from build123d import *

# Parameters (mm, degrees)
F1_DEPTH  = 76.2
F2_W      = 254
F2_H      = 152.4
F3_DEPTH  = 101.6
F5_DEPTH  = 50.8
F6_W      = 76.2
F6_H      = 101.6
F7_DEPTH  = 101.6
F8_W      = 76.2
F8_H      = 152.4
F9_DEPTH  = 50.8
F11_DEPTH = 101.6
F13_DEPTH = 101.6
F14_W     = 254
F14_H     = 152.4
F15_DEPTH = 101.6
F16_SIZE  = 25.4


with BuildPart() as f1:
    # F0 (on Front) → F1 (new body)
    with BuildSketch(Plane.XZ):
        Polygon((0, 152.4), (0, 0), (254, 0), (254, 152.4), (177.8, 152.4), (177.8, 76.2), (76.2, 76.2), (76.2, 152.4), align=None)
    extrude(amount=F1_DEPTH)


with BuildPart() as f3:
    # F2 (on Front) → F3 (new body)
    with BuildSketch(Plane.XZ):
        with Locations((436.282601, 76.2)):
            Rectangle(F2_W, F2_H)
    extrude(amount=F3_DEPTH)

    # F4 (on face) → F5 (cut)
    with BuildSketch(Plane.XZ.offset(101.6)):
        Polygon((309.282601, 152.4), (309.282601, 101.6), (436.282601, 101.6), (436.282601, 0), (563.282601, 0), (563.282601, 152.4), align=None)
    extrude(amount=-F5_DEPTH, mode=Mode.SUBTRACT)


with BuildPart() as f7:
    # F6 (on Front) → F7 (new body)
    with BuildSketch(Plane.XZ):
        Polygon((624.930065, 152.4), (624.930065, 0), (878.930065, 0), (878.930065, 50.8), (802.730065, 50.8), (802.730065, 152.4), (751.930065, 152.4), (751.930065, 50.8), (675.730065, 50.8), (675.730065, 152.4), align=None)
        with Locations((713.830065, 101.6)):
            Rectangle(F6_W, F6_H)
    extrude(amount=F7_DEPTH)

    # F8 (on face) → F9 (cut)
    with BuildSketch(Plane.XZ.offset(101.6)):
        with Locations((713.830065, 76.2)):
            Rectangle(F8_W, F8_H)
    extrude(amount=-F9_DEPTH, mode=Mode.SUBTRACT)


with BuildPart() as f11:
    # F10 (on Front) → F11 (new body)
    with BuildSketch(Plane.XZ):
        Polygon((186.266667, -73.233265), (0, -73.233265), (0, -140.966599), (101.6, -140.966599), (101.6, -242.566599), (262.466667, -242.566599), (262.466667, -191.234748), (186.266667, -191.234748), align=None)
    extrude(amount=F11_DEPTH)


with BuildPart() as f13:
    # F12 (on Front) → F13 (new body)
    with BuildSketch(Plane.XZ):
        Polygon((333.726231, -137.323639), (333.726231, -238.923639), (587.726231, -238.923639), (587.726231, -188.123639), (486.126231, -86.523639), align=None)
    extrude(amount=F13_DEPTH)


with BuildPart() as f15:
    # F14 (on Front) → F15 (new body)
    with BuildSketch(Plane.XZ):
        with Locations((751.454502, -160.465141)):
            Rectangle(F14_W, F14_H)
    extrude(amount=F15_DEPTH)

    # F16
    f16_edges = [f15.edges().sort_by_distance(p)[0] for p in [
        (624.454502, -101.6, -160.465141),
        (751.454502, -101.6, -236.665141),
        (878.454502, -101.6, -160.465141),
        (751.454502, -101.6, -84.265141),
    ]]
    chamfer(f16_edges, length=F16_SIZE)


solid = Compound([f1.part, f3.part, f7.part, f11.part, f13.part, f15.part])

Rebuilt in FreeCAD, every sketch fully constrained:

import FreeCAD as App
import Part
import Sketcher
from FreeCAD import Vector
Q = App.Units.Quantity


def edges_at(feature, points):
    """Names of the edges that pass closest to the given points."""
    edges = feature.Shape.Edges
    near = lambda p: min(range(len(edges)), key=lambda i: edges[i].distToShape(Part.Vertex(*p))[0])
    return sorted({f"Edge{near(p) + 1}" for p in points})

doc = App.newDocument("Part")
params = doc.addObject("Spreadsheet::Sheet", "Params")
for row, (alias, value) in enumerate([
    ("sketch1_width", "10 in"),
    ("sketch1_width2", "3 in"),
    ("sketch1_height", "6 in"),
    ("pad1_length", "3 in"),
    ("sketch2_width", "10 in"),
    ("sketch2_height", "6 in"),
    ("pad2_length", "4 in"),
    ("sketch3_width", "5 in"),
    ("sketch3_height", "2 in"),
    ("sketch3_height2", "4 in"),
    ("pocket1_length", "2 in"),
    ("sketch4_width", "10 in"),
    ("sketch4_width2", "3 in"),
    ("sketch4_height", "6 in"),
    ("sketch4_height2", "2 in"),
    ("pad3_length", "4 in"),
    ("sketch5_width", "3 in"),
    ("sketch5_height", "6 in"),
    ("pocket2_length", "2 in"),
    ("sketch6_width", "4 in"),
    ("sketch6_width2", "3 in"),
    ("pad4_length", "4 in"),
    ("sketch7_width", "10 in"),
    ("sketch7_height", "4 in"),
    ("sketch7_height2", "2 in"),
    ("pad5_length", "4 in"),
    ("sketch8_width", "10 in"),
    ("sketch8_height", "6 in"),
    ("pad6_length", "4 in"),
    ("chamfer_size", "1 in"),
], start=1):
    params.set(f"A{row}", alias)
    params.set(f"B{row}", "=" + value)
    params.setAlias(f"B{row}", alias)

body = doc.addObject("PartDesign::Body", "Body")

sketch1 = body.newObject("Sketcher::SketchObject", "Sketch")
sketch1.AttachmentSupport = (doc.getObject("XZ_Plane"), [""])
sketch1.MapMode = "FlatFace"
sketch1.addGeometry([
    Part.LineSegment(Vector(0, 152.4, 0), Vector(0, 0, 0)),
    Part.LineSegment(Vector(0, 0, 0), Vector(254, 0, 0)),
    Part.LineSegment(Vector(254, 0, 0), Vector(254, 152.4, 0)),
    Part.LineSegment(Vector(254, 152.4, 0), Vector(177.8, 152.4, 0)),
    Part.LineSegment(Vector(177.8, 152.4, 0), Vector(177.8, 76.2, 0)),
    Part.LineSegment(Vector(177.8, 76.2, 0), Vector(76.2, 76.2, 0)),
    Part.LineSegment(Vector(76.2, 76.2, 0), Vector(76.2, 152.4, 0)),
    Part.LineSegment(Vector(76.2, 152.4, 0), Vector(0, 152.4, 0)),
], False)
sketch1.addConstraint([
    Sketcher.Constraint("Coincident", 0, 2, 1, 1),
    Sketcher.Constraint("Coincident", 1, 2, 2, 1),
    Sketcher.Constraint("Coincident", 2, 2, 3, 1),
    Sketcher.Constraint("Coincident", 3, 2, 4, 1),
    Sketcher.Constraint("Coincident", 4, 2, 5, 1),
    Sketcher.Constraint("Coincident", 5, 2, 6, 1),
    Sketcher.Constraint("Coincident", 6, 2, 7, 1),
    Sketcher.Constraint("Coincident", 7, 2, 0, 1),
    Sketcher.Constraint("Vertical", 0),
    Sketcher.Constraint("Horizontal", 1),
    Sketcher.Constraint("Vertical", 2),
    Sketcher.Constraint("Horizontal", 3),
    Sketcher.Constraint("Vertical", 4),
    Sketcher.Constraint("Horizontal", 5),
    Sketcher.Constraint("Vertical", 6),
    Sketcher.Constraint("Horizontal", 7),
    Sketcher.Constraint("Coincident", 0, 2, -1, 1),
    Sketcher.Constraint("Horizontal", 3, 2, 6, 2),
    Sketcher.Constraint("Equal", 3, 7),
    Sketcher.Constraint("Equal", 7, 4),
    Sketcher.Constraint("DistanceX", 1, 1, 1, 2, Q("10 in")),
    Sketcher.Constraint("DistanceX", 3, 2, 3, 1, Q("3 in")),
    Sketcher.Constraint("DistanceY", 0, 2, 0, 1, Q("6 in")),
])
sketch1.setExpression("Constraints[20]", "Params.sketch1_width")
sketch1.setExpression("Constraints[21]", "Params.sketch1_width2")
sketch1.setExpression("Constraints[22]", "Params.sketch1_height")
pad1 = body.newObject("PartDesign::Pad", "Pad")
pad1.Profile = sketch1
pad1.setExpression("Length", "Params.pad1_length")
body2 = doc.addObject("PartDesign::Body", "Body001")

sketch2 = body2.newObject("Sketcher::SketchObject", "Sketch001")
sketch2.AttachmentSupport = (doc.getObject("XZ_Plane001"), [""])
sketch2.MapMode = "FlatFace"
sketch2.addGeometry([
    Part.LineSegment(Vector(309.282601, 152.4, 0), Vector(309.282601, 0, 0)),
    Part.LineSegment(Vector(309.282601, 0, 0), Vector(563.282601, 0, 0)),
    Part.LineSegment(Vector(563.282601, 0, 0), Vector(563.282601, 152.4, 0)),
    Part.LineSegment(Vector(563.282601, 152.4, 0), Vector(309.282601, 152.4, 0)),
], False)
sketch2.addConstraint([
    Sketcher.Constraint("Coincident", 0, 2, 1, 1),
    Sketcher.Constraint("Coincident", 1, 2, 2, 1),
    Sketcher.Constraint("Coincident", 2, 2, 3, 1),
    Sketcher.Constraint("Coincident", 3, 2, 0, 1),
    Sketcher.Constraint("Vertical", 0),
    Sketcher.Constraint("Horizontal", 1),
    Sketcher.Constraint("Vertical", 2),
    Sketcher.Constraint("Horizontal", 3),
    Sketcher.Constraint("PointOnObject", 0, 2, -1),
    Sketcher.Constraint("DistanceX", 1, 1, 1, 2, Q("10 in")),
    Sketcher.Constraint("DistanceY", 0, 2, 0, 1, Q("6 in")),
    Sketcher.Constraint("DistanceX", -1, 1, 0, 2, 309.282601),
])
sketch2.setExpression("Constraints[9]", "Params.sketch2_width")
sketch2.setExpression("Constraints[10]", "Params.sketch2_height")
pad2 = body2.newObject("PartDesign::Pad", "Pad001")
pad2.Profile = sketch2
pad2.setExpression("Length", "Params.pad2_length")

sketch3 = body2.newObject("Sketcher::SketchObject", "Sketch002")
sketch3.AttachmentSupport = (doc.getObject("XZ_Plane001"), [""])
sketch3.MapMode = "FlatFace"
sketch3.AttachmentOffset = App.Placement(Vector(0, 0, 4 * 25.4), App.Rotation())
sketch3.addGeometry([
    Part.LineSegment(Vector(309.282601, 152.4, 0), Vector(309.282601, 101.6, 0)),
    Part.LineSegment(Vector(309.282601, 101.6, 0), Vector(436.282601, 101.6, 0)),
    Part.LineSegment(Vector(436.282601, 101.6, 0), Vector(436.282601, 0, 0)),
    Part.LineSegment(Vector(436.282601, 0, 0), Vector(563.282601, 0, 0)),
    Part.LineSegment(Vector(563.282601, 0, 0), Vector(563.282601, 152.4, 0)),
    Part.LineSegment(Vector(563.282601, 152.4, 0), Vector(309.282601, 152.4, 0)),
], False)
sketch3.addConstraint([
    Sketcher.Constraint("Coincident", 0, 2, 1, 1),
    Sketcher.Constraint("Coincident", 1, 2, 2, 1),
    Sketcher.Constraint("Coincident", 2, 2, 3, 1),
    Sketcher.Constraint("Coincident", 3, 2, 4, 1),
    Sketcher.Constraint("Coincident", 4, 2, 5, 1),
    Sketcher.Constraint("Coincident", 5, 2, 0, 1),
    Sketcher.Constraint("Vertical", 0),
    Sketcher.Constraint("Horizontal", 1),
    Sketcher.Constraint("Vertical", 2),
    Sketcher.Constraint("Horizontal", 3),
    Sketcher.Constraint("Vertical", 4),
    Sketcher.Constraint("Horizontal", 5),
    Sketcher.Constraint("PointOnObject", 2, 2, -1),
    Sketcher.Constraint("Equal", 1, 3),
    Sketcher.Constraint("DistanceX", 1, 1, 1, 2, Q("5 in")),
    Sketcher.Constraint("DistanceY", 0, 2, 0, 1, Q("2 in")),
    Sketcher.Constraint("DistanceY", 2, 2, 2, 1, Q("4 in")),
    Sketcher.Constraint("DistanceX", -1, 1, 0, 2, 309.282601),
])
sketch3.setExpression("Constraints[14]", "Params.sketch3_width")
sketch3.setExpression("Constraints[15]", "Params.sketch3_height")
sketch3.setExpression("Constraints[16]", "Params.sketch3_height2")
pocket1 = body2.newObject("PartDesign::Pocket", "Pocket")
pocket1.Profile = sketch3
pocket1.setExpression("Length", "Params.pocket1_length")
body3 = doc.addObject("PartDesign::Body", "Body002")

sketch4 = body3.newObject("Sketcher::SketchObject", "Sketch003")
sketch4.AttachmentSupport = (doc.getObject("XZ_Plane002"), [""])
sketch4.MapMode = "FlatFace"
sketch4.addGeometry([
    Part.LineSegment(Vector(624.930065, 152.4, 0), Vector(624.930065, 0, 0)),
    Part.LineSegment(Vector(624.930065, 0, 0), Vector(878.930065, 0, 0)),
    Part.LineSegment(Vector(878.930065, 0, 0), Vector(878.930065, 50.8, 0)),
    Part.LineSegment(Vector(878.930065, 50.8, 0), Vector(802.730065, 50.8, 0)),
    Part.LineSegment(Vector(802.730065, 50.8, 0), Vector(802.730065, 152.4, 0)),
    Part.LineSegment(Vector(802.730065, 152.4, 0), Vector(624.930065, 152.4, 0)),
], False)
sketch4.addConstraint([
    Sketcher.Constraint("Coincident", 0, 2, 1, 1),
    Sketcher.Constraint("Coincident", 1, 2, 2, 1),
    Sketcher.Constraint("Coincident", 2, 2, 3, 1),
    Sketcher.Constraint("Coincident", 3, 2, 4, 1),
    Sketcher.Constraint("Coincident", 4, 2, 5, 1),
    Sketcher.Constraint("Coincident", 5, 2, 0, 1),
    Sketcher.Constraint("Vertical", 0),
    Sketcher.Constraint("Horizontal", 1),
    Sketcher.Constraint("Vertical", 2),
    Sketcher.Constraint("Horizontal", 3),
    Sketcher.Constraint("Vertical", 4),
    Sketcher.Constraint("Horizontal", 5),
    Sketcher.Constraint("PointOnObject", 0, 2, -1),
    Sketcher.Constraint("DistanceX", 1, 1, 1, 2, Q("10 in")),
    Sketcher.Constraint("DistanceX", 3, 2, 3, 1, Q("3 in")),
    Sketcher.Constraint("DistanceY", 0, 2, 0, 1, Q("6 in")),
    Sketcher.Constraint("DistanceY", 2, 1, 2, 2, Q("2 in")),
    Sketcher.Constraint("DistanceX", -1, 1, 0, 2, 624.930065),
])
sketch4.setExpression("Constraints[13]", "Params.sketch4_width")
sketch4.setExpression("Constraints[14]", "Params.sketch4_width2")
sketch4.setExpression("Constraints[15]", "Params.sketch4_height")
sketch4.setExpression("Constraints[16]", "Params.sketch4_height2")
pad3 = body3.newObject("PartDesign::Pad", "Pad002")
pad3.Profile = sketch4
pad3.setExpression("Length", "Params.pad3_length")

sketch5 = body3.newObject("Sketcher::SketchObject", "Sketch004")
sketch5.AttachmentSupport = (doc.getObject("XZ_Plane002"), [""])
sketch5.MapMode = "FlatFace"
sketch5.AttachmentOffset = App.Placement(Vector(0, 0, 4 * 25.4), App.Rotation())
sketch5.addGeometry([
    Part.LineSegment(Vector(675.730065, 152.4, 0), Vector(675.730065, 0, 0)),
    Part.LineSegment(Vector(675.730065, 0, 0), Vector(751.930065, 0, 0)),
    Part.LineSegment(Vector(751.930065, 0, 0), Vector(751.930065, 152.4, 0)),
    Part.LineSegment(Vector(751.930065, 152.4, 0), Vector(675.730065, 152.4, 0)),
], False)
sketch5.addConstraint([
    Sketcher.Constraint("Coincident", 0, 2, 1, 1),
    Sketcher.Constraint("Coincident", 1, 2, 2, 1),
    Sketcher.Constraint("Coincident", 2, 2, 3, 1),
    Sketcher.Constraint("Coincident", 3, 2, 0, 1),
    Sketcher.Constraint("Vertical", 0),
    Sketcher.Constraint("Horizontal", 1),
    Sketcher.Constraint("Vertical", 2),
    Sketcher.Constraint("Horizontal", 3),
    Sketcher.Constraint("PointOnObject", 0, 2, -1),
    Sketcher.Constraint("DistanceX", 1, 1, 1, 2, Q("3 in")),
    Sketcher.Constraint("DistanceY", 0, 2, 0, 1, Q("6 in")),
    Sketcher.Constraint("DistanceX", -1, 1, 0, 2, 675.730065),
])
sketch5.setExpression("Constraints[9]", "Params.sketch5_width")
sketch5.setExpression("Constraints[10]", "Params.sketch5_height")
pocket2 = body3.newObject("PartDesign::Pocket", "Pocket001")
pocket2.Profile = sketch5
pocket2.setExpression("Length", "Params.pocket2_length")
body4 = doc.addObject("PartDesign::Body", "Body003")

sketch6 = body4.newObject("Sketcher::SketchObject", "Sketch005")
sketch6.AttachmentSupport = (doc.getObject("XZ_Plane003"), [""])
sketch6.MapMode = "FlatFace"
sketch6.addGeometry([
    Part.LineSegment(Vector(186.266667, -73.233265, 0), Vector(0, -73.233265, 0)),
    Part.LineSegment(Vector(0, -73.233265, 0), Vector(0, -140.966599, 0)),
    Part.LineSegment(Vector(0, -140.966599, 0), Vector(101.6, -140.966599, 0)),
    Part.LineSegment(Vector(101.6, -140.966599, 0), Vector(101.6, -242.566599, 0)),
    Part.LineSegment(Vector(101.6, -242.566599, 0), Vector(262.466667, -242.566599, 0)),
    Part.LineSegment(Vector(262.466667, -242.566599, 0), Vector(262.466667, -191.234748, 0)),
    Part.LineSegment(Vector(262.466667, -191.234748, 0), Vector(186.266667, -191.234748, 0)),
    Part.LineSegment(Vector(186.266667, -191.234748, 0), Vector(186.266667, -73.233265, 0)),
], False)
sketch6.addConstraint([
    Sketcher.Constraint("Coincident", 0, 2, 1, 1),
    Sketcher.Constraint("Coincident", 1, 2, 2, 1),
    Sketcher.Constraint("Coincident", 2, 2, 3, 1),
    Sketcher.Constraint("Coincident", 3, 2, 4, 1),
    Sketcher.Constraint("Coincident", 4, 2, 5, 1),
    Sketcher.Constraint("Coincident", 5, 2, 6, 1),
    Sketcher.Constraint("Coincident", 6, 2, 7, 1),
    Sketcher.Constraint("Coincident", 7, 2, 0, 1),
    Sketcher.Constraint("Horizontal", 0),
    Sketcher.Constraint("Vertical", 1),
    Sketcher.Constraint("Horizontal", 2),
    Sketcher.Constraint("Vertical", 3),
    Sketcher.Constraint("Horizontal", 4),
    Sketcher.Constraint("Vertical", 5),
    Sketcher.Constraint("Horizontal", 6),
    Sketcher.Constraint("Vertical", 7),
    Sketcher.Constraint("PointOnObject", 0, 2, -2),
    Sketcher.Constraint("Equal", 2, 3),
    Sketcher.Constraint("DistanceX", 2, 1, 2, 2, Q("4 in")),
    Sketcher.Constraint("DistanceX", 6, 2, 6, 1, Q("3 in")),
    Sketcher.Constraint("DistanceY", 5, 1, 5, 2, 51.331851),
    Sketcher.Constraint("DistanceY", 1, 2, -1, 1, 140.966599),
    Sketcher.Constraint("DistanceX", 0, 2, 0, 1, 186.266667),
    Sketcher.Constraint("DistanceY", 1, 2, 1, 1, 67.733334),
])
sketch6.setExpression("Constraints[18]", "Params.sketch6_width")
sketch6.setExpression("Constraints[19]", "Params.sketch6_width2")
pad4 = body4.newObject("PartDesign::Pad", "Pad003")
pad4.Profile = sketch6
pad4.setExpression("Length", "Params.pad4_length")
body5 = doc.addObject("PartDesign::Body", "Body004")

sketch7 = body5.newObject("Sketcher::SketchObject", "Sketch006")
sketch7.AttachmentSupport = (doc.getObject("XZ_Plane004"), [""])
sketch7.MapMode = "FlatFace"
sketch7.addGeometry([
    Part.LineSegment(Vector(333.726231, -137.323639, 0), Vector(333.726231, -238.923639, 0)),
    Part.LineSegment(Vector(333.726231, -238.923639, 0), Vector(587.726231, -238.923639, 0)),
    Part.LineSegment(Vector(587.726231, -238.923639, 0), Vector(587.726231, -188.123639, 0)),
    Part.LineSegment(Vector(587.726231, -188.123639, 0), Vector(486.126231, -86.523639, 0)),
    Part.LineSegment(Vector(486.126231, -86.523639, 0), Vector(333.726231, -137.323639, 0)),
], False)
sketch7.addConstraint([
    Sketcher.Constraint("Coincident", 0, 2, 1, 1),
    Sketcher.Constraint("Coincident", 1, 2, 2, 1),
    Sketcher.Constraint("Coincident", 2, 2, 3, 1),
    Sketcher.Constraint("Coincident", 3, 2, 4, 1),
    Sketcher.Constraint("Coincident", 4, 2, 0, 1),
    Sketcher.Constraint("Vertical", 0),
    Sketcher.Constraint("Horizontal", 1),
    Sketcher.Constraint("Vertical", 2),
    Sketcher.Constraint("DistanceX", 1, 1, 1, 2, Q("10 in")),
    Sketcher.Constraint("DistanceY", 0, 2, 0, 1, Q("4 in")),
    Sketcher.Constraint("DistanceY", 2, 1, 2, 2, Q("2 in")),
    Sketcher.Constraint("Angle", 3, Q("135 deg")),
    Sketcher.Constraint("DistanceX", 3, 2, 2, 2, Q("4 in")),
    Sketcher.Constraint("DistanceX", -1, 1, 0, 2, 333.726231),
    Sketcher.Constraint("DistanceY", 0, 2, -1, 1, 238.923639),
])
sketch7.setExpression("Constraints[8]", "Params.sketch7_width")
sketch7.setExpression("Constraints[9]", "Params.sketch7_height")
sketch7.setExpression("Constraints[10]", "Params.sketch7_height2")
pad5 = body5.newObject("PartDesign::Pad", "Pad004")
pad5.Profile = sketch7
pad5.setExpression("Length", "Params.pad5_length")
body6 = doc.addObject("PartDesign::Body", "Body005")

sketch8 = body6.newObject("Sketcher::SketchObject", "Sketch007")
sketch8.AttachmentSupport = (doc.getObject("XZ_Plane005"), [""])
sketch8.MapMode = "FlatFace"
sketch8.addGeometry([
    Part.LineSegment(Vector(624.454502, -84.265141, 0), Vector(624.454502, -236.665141, 0)),
    Part.LineSegment(Vector(624.454502, -236.665141, 0), Vector(878.454502, -236.665141, 0)),
    Part.LineSegment(Vector(878.454502, -236.665141, 0), Vector(878.454502, -84.265141, 0)),
    Part.LineSegment(Vector(878.454502, -84.265141, 0), Vector(624.454502, -84.265141, 0)),
], False)
sketch8.addConstraint([
    Sketcher.Constraint("Coincident", 0, 2, 1, 1),
    Sketcher.Constraint("Coincident", 1, 2, 2, 1),
    Sketcher.Constraint("Coincident", 2, 2, 3, 1),
    Sketcher.Constraint("Coincident", 3, 2, 0, 1),
    Sketcher.Constraint("Vertical", 0),
    Sketcher.Constraint("Horizontal", 1),
    Sketcher.Constraint("Vertical", 2),
    Sketcher.Constraint("Horizontal", 3),
    Sketcher.Constraint("DistanceX", 1, 1, 1, 2, Q("10 in")),
    Sketcher.Constraint("DistanceY", 0, 2, 0, 1, Q("6 in")),
    Sketcher.Constraint("DistanceX", -1, 1, 0, 2, 624.454502),
    Sketcher.Constraint("DistanceY", 0, 2, -1, 1, 236.665141),
])
sketch8.setExpression("Constraints[8]", "Params.sketch8_width")
sketch8.setExpression("Constraints[9]", "Params.sketch8_height")
pad6 = body6.newObject("PartDesign::Pad", "Pad005")
pad6.Profile = sketch8
pad6.setExpression("Length", "Params.pad6_length")
doc.recompute()

chamfer = body6.newObject("PartDesign::Chamfer", "Chamfer")
chamfer.Base = (pad6, edges_at(pad6, [
    (624.455, -101.6, -160.465),
    (751.455, -101.6, -236.665),
    (878.455, -101.6, -160.465),
    (751.455, -101.6, -84.265),
]))
chamfer.setExpression("Size", "Params.chamfer_size")

doc.recompute()
